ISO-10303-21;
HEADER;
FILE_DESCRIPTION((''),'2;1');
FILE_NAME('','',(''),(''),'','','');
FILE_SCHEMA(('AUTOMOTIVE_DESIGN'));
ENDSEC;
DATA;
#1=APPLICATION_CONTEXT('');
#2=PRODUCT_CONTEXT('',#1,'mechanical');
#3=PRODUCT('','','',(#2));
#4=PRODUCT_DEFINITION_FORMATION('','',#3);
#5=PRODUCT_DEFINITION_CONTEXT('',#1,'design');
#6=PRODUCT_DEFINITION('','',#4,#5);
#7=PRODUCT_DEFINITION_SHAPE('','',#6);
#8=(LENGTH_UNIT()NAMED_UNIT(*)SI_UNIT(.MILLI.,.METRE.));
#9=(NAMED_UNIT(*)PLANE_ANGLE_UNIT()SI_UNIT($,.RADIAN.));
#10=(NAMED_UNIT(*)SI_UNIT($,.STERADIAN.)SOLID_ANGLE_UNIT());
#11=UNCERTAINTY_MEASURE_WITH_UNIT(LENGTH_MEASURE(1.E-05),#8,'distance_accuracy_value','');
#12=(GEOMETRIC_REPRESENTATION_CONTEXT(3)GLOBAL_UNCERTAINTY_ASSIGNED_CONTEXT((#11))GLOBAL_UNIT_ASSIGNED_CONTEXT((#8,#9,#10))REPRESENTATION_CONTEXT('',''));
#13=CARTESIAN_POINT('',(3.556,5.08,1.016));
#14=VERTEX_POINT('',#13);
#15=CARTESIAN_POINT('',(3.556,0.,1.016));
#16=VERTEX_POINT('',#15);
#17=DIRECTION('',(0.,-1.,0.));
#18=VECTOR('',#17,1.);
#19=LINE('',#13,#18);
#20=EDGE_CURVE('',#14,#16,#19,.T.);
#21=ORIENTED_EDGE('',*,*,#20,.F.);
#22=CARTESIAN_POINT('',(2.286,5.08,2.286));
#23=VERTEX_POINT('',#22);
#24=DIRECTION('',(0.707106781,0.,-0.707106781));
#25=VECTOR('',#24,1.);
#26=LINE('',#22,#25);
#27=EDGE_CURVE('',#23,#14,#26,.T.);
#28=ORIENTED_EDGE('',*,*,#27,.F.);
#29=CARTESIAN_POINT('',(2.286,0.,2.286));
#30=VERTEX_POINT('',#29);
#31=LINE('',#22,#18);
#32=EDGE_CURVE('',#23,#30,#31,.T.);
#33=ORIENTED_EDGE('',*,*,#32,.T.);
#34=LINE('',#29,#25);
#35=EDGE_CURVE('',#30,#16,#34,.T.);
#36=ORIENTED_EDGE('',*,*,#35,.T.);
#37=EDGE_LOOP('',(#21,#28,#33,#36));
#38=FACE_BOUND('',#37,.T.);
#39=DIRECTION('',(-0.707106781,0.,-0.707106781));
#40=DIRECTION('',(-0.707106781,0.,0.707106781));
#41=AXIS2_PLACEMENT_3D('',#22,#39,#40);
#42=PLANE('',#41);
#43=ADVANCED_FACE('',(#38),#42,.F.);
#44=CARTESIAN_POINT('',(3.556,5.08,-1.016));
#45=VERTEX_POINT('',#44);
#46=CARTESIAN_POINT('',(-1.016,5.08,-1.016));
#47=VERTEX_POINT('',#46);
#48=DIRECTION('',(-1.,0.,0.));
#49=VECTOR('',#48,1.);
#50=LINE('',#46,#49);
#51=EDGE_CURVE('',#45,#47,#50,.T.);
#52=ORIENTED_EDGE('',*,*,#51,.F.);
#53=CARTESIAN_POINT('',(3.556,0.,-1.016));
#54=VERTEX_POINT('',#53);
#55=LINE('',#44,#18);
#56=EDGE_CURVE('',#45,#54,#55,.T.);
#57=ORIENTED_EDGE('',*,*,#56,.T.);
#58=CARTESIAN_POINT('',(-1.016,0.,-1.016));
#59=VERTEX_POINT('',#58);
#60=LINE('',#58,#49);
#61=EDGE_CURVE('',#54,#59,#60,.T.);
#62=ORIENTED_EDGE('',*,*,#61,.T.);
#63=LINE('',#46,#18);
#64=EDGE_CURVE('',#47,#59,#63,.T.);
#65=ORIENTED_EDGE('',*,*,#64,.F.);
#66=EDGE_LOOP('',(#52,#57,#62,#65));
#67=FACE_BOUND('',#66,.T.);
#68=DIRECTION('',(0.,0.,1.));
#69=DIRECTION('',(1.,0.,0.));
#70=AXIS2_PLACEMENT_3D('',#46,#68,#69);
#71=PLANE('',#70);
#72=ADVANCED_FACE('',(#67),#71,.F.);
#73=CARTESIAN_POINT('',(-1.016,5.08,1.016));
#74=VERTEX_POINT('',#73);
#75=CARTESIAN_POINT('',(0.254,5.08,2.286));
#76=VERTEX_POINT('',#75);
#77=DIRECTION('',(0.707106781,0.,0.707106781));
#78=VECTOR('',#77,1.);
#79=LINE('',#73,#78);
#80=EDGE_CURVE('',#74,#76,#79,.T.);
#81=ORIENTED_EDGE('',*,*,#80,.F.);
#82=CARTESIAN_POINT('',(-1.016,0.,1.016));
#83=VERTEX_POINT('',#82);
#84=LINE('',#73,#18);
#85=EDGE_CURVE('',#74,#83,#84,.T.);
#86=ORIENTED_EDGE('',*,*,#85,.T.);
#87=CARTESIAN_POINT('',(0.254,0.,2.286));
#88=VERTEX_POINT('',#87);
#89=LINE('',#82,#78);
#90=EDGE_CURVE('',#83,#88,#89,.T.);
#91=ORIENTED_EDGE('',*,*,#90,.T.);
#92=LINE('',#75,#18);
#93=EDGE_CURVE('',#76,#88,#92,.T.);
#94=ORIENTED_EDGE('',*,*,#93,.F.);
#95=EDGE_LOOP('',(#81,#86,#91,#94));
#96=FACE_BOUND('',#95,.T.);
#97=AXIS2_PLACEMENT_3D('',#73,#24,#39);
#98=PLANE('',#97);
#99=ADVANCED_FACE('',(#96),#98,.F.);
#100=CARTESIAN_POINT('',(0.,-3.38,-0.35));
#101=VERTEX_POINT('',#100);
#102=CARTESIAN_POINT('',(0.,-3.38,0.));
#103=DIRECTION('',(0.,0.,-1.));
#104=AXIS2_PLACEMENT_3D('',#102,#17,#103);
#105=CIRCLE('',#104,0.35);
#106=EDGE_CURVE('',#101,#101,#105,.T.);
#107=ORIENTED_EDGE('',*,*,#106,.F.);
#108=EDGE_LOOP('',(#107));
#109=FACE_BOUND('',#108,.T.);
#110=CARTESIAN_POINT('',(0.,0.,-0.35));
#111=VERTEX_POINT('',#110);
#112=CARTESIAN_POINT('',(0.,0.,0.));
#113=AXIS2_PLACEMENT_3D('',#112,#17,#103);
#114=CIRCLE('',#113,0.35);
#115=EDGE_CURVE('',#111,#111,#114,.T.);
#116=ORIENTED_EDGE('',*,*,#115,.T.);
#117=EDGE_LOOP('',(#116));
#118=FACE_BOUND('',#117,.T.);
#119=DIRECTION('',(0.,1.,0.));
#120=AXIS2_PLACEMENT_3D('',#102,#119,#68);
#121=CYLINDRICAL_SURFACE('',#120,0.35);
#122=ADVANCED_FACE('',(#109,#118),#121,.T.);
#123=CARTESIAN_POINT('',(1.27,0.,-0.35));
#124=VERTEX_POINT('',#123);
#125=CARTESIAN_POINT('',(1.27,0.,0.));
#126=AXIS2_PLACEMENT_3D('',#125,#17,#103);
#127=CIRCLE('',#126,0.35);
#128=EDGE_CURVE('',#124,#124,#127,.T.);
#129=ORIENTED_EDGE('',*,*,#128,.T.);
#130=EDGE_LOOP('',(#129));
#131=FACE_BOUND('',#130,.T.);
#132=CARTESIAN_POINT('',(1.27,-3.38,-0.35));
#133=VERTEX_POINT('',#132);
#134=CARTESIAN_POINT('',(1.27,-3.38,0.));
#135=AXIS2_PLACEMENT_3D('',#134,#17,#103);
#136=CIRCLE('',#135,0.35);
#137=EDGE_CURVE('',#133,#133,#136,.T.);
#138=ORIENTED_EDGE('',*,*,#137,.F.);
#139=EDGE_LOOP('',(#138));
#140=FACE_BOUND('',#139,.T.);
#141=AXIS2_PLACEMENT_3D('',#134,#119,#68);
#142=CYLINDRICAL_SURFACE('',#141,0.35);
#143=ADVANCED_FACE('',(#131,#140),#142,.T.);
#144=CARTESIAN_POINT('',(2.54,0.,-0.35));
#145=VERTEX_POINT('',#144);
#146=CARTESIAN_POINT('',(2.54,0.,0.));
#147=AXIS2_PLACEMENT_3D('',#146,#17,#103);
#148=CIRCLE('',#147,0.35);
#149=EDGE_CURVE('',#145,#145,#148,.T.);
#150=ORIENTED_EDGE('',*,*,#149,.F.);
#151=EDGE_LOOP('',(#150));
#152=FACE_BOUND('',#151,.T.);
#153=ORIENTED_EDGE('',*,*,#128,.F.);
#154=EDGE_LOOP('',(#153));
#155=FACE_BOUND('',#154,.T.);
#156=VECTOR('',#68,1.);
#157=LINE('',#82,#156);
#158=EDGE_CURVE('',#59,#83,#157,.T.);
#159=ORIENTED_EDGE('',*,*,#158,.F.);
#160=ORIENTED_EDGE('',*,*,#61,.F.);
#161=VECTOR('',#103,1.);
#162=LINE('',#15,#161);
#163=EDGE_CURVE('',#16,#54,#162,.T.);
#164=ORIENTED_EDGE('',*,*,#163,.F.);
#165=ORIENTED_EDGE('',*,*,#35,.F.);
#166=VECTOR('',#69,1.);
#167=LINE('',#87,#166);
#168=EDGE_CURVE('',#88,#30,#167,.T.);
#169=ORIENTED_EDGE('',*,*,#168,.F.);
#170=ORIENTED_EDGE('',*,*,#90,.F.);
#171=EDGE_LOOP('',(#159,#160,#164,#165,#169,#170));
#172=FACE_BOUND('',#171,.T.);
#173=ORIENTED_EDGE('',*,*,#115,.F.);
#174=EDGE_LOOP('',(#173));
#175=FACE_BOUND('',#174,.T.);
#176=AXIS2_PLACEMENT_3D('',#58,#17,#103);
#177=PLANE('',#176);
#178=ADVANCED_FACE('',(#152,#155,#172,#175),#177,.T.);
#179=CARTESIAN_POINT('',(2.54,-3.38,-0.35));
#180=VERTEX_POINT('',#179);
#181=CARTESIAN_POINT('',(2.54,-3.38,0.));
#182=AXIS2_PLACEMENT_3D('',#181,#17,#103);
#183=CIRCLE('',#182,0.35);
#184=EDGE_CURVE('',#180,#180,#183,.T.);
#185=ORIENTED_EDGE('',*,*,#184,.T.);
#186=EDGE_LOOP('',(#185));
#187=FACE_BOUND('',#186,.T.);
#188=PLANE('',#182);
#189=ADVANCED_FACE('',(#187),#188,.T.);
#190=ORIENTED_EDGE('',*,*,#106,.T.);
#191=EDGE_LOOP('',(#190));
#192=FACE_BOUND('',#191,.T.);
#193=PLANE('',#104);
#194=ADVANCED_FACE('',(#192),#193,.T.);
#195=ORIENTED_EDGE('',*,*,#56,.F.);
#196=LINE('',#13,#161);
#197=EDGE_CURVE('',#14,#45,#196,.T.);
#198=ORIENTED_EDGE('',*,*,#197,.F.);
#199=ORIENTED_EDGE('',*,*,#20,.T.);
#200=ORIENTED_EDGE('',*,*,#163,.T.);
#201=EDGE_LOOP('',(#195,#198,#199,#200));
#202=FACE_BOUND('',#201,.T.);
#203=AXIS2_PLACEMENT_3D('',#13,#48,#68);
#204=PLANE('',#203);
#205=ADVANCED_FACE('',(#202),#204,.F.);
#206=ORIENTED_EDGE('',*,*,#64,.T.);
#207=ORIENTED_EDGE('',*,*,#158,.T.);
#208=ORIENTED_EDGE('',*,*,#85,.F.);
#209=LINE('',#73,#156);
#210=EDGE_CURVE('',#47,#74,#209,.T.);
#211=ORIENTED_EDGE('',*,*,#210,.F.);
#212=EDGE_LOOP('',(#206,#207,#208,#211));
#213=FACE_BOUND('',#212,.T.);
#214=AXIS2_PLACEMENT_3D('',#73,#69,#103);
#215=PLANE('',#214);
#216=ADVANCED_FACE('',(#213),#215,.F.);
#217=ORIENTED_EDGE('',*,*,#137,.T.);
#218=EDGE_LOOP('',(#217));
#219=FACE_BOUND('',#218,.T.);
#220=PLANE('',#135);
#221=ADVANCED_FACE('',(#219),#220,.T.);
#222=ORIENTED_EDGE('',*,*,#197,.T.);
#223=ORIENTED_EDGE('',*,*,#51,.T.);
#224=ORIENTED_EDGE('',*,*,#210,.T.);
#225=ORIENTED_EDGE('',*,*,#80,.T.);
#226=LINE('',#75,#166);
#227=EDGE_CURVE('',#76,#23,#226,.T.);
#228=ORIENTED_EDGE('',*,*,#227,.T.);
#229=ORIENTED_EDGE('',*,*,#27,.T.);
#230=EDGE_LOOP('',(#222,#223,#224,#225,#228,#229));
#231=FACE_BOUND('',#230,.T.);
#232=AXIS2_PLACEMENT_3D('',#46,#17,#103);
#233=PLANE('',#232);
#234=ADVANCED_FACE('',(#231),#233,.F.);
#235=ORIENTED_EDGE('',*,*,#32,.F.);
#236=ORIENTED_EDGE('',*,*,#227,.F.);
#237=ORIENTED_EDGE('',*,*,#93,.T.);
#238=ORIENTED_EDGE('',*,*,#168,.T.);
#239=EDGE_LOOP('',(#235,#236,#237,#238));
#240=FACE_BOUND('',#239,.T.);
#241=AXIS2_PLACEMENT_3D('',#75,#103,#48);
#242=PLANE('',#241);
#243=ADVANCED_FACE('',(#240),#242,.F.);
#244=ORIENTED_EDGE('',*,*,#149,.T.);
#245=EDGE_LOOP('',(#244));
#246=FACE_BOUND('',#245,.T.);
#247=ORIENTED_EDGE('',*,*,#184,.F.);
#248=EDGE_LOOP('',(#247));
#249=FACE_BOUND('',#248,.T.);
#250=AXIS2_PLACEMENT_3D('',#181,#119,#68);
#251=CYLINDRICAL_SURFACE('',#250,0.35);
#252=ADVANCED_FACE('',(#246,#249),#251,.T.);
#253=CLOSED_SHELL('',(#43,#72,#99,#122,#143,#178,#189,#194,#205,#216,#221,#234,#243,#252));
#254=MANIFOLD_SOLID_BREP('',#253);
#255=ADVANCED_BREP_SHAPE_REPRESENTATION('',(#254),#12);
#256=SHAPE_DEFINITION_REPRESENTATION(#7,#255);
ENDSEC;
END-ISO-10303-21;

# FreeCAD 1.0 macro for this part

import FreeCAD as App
import Part
import Sketcher
Q = App.Units.Quantity

doc = App.newDocument("Part")
body = doc.addObject("PartDesign::Body", "Body")

# Sketch on XZ plane
sketch1 = doc.addObject("Sketcher::SketchObject", "Sketch")
body.addObject(sketch1)
sketch1.AttachmentSupport = (doc.XZ_Plane, [""])
sketch1.MapMode = "FlatFace"
sketch1.addGeometry([
    Part.LineSegment(App.Vector(-1, 1, 0), App.Vector(0.3, 2.3, 0)),  # 0
    Part.LineSegment(App.Vector(0.3, 2.3, 0), App.Vector(2.3, 2.3, 0)),  # 1
    Part.LineSegment(App.Vector(2.3, 2.3, 0), App.Vector(3.6, 1, 0)),  # 2
    Part.LineSegment(App.Vector(3.6, 1, 0), App.Vector(3.6, -1, 0)),  # 3
    Part.LineSegment(App.Vector(3.6, -1, 0), App.Vector(-1, -1, 0)),  # 4
    Part.LineSegment(App.Vector(-1, -1, 0), App.Vector(-1, 1, 0)),  # 5
], False)
sketch1.addConstraint([
    Sketcher.Constraint("Coincident", 0, 2, 1, 1),
    Sketcher.Constraint("Coincident", 1, 2, 2, 1),
    Sketcher.Constraint("Coincident", 2, 2, 3, 1),
    Sketcher.Constraint("Coincident", 3, 2, 4, 1),
    Sketcher.Constraint("Coincident", 4, 2, 5, 1),
    Sketcher.Constraint("Coincident", 5, 2, 0, 1),
    Sketcher.Constraint("Horizontal", 1),
    Sketcher.Constraint("Vertical", 3),
    Sketcher.Constraint("Horizontal", 4),
    Sketcher.Constraint("Vertical", 5),
    Sketcher.Constraint("Perpendicular", 0, 2),
    Sketcher.Constraint("Horizontal", 2, 2, 5, 2),
    Sketcher.Constraint("Equal", 1, 3),
    Sketcher.Constraint("Equal", 0, 2),
    Sketcher.Constraint("DistanceX", 1, 1, 1, 2, Q("0.08 in")),
    Sketcher.Constraint("DistanceX", 4, 2, 4, 1, Q("0.18 in")),
    Sketcher.Constraint("DistanceX", -1, 1, 0, 2, Q("0.01 in")),
    Sketcher.Constraint("DistanceY", -1, 1, 0, 2, Q("0.09 in")),
])
pad1 = doc.addObject("PartDesign::Pad", "Pad")
body.addObject(pad1)
pad1.Profile = sketch1
pad1.Length = Q("0.2 in")
pad1.Reversed = True

# Sketch on XZ plane
sketch2 = doc.addObject("Sketcher::SketchObject", "Sketch001")
body.addObject(sketch2)
sketch2.AttachmentSupport = (doc.XZ_Plane, [""])
sketch2.MapMode = "FlatFace"
sketch2.addGeometry([
    Part.Circle(App.Vector(0, 0, 0), App.Vector(0, 0, 1), 0.35),
    Part.Circle(App.Vector(1.27, 0, 0), App.Vector(0, 0, 1), 0.35),
    Part.Circle(App.Vector(2.54, 0, 0), App.Vector(0, 0, 1), 0.35),
], False)
sketch2.addConstraint([
    Sketcher.Constraint("Coincident", 0, 3, -1, 1),
    Sketcher.Constraint("Equal", 0, 1),
    Sketcher.Constraint("Equal", 1, 2),
    Sketcher.Constraint("PointOnObject", 1, 3, -1),
    Sketcher.Constraint("PointOnObject", 2, 3, -1),
    Sketcher.Constraint("DistanceX", -1, 1, 2, 3, Q("0.1 in")),
    Sketcher.Constraint("Diameter", 0, 0.7),
    Sketcher.Constraint("DistanceX", -1, 1, 1, 3, Q("0.05 in")),
])
pad2 = doc.addObject("PartDesign::Pad", "Pad001")
body.addObject(pad2)
pad2.Profile = sketch2
pad2.Length = 3.38

doc.recompute()
